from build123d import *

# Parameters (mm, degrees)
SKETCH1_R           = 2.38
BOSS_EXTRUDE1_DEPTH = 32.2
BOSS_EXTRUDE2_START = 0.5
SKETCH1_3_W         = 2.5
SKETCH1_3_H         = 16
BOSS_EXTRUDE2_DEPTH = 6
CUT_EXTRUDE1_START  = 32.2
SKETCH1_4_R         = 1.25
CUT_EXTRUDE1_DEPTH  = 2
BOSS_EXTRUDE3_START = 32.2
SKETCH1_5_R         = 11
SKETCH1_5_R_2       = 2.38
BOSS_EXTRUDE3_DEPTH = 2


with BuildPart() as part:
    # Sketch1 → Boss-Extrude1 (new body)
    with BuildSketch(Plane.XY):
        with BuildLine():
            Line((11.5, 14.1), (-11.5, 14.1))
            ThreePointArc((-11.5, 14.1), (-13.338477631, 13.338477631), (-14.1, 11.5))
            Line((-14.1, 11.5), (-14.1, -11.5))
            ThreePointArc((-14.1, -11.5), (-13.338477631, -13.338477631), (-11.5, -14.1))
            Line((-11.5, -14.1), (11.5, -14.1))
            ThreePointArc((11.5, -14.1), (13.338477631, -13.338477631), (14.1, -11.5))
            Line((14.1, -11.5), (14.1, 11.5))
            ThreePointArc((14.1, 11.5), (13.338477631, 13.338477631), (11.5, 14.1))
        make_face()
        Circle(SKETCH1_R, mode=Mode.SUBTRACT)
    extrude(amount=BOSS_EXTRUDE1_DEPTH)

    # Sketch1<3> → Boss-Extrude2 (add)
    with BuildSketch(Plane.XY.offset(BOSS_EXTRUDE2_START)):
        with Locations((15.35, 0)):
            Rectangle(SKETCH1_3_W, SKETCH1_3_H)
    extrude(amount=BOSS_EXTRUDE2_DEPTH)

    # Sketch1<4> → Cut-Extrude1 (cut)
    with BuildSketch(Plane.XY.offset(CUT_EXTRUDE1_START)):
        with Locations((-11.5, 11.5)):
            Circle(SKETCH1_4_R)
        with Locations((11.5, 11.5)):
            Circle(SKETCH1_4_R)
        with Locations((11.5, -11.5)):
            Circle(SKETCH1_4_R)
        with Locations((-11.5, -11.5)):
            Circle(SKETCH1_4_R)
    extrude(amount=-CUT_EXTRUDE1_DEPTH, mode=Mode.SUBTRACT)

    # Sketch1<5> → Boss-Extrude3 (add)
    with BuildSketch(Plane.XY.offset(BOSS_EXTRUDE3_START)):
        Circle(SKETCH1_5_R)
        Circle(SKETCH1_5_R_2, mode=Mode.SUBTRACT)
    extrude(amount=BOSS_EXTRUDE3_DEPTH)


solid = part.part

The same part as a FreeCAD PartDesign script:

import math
import FreeCAD as App
import Part
import Sketcher

doc = App.newDocument("Part")
body = doc.addObject("PartDesign::Body", "Body")

sketch1 = body.newObject("Sketcher::SketchObject", "Sketch")
sketch1.AttachmentSupport = (doc.getObject("XY_Plane"), [""])
sketch1.MapMode = "FlatFace"
sketch1.addGeometry([
    Part.LineSegment(App.Vector(11.5, 14.1, 0), App.Vector(-11.5, 14.1, 0)),
    Part.ArcOfCircle(Part.Circle(App.Vector(-11.5, 11.5, 0), App.Vector(0, 0, 1), 2.6), math.radians(90), math.radians(180)),
    Part.LineSegment(App.Vector(-14.1, 11.5, 0), App.Vector(-14.1, -11.5, 0)),
    Part.ArcOfCircle(Part.Circle(App.Vector(-11.5, -11.5, 0), App.Vector(0, 0, 1), 2.6), math.radians(180), math.radians(270)),
    Part.LineSegment(App.Vector(-11.5, -14.1, 0), App.Vector(11.5, -14.1, 0)),
    Part.ArcOfCircle(Part.Circle(App.Vector(11.5, -11.5, 0), App.Vector(0, 0, 1), 2.6), math.radians(-90), math.radians(0)),
    Part.LineSegment(App.Vector(14.1, -11.5, 0), App.Vector(14.1, 11.5, 0)),
    Part.ArcOfCircle(Part.Circle(App.Vector(11.5, 11.5, 0), App.Vector(0, 0, 1), 2.6), math.radians(0), math.radians(90)),
    Part.Circle(App.Vector(0, 0, 0), App.Vector(0, 0, 1), 2.4),
], False)
sketch1.addConstraint([
    Sketcher.Constraint("Tangent", 0, 2, 1, 1),
    Sketcher.Constraint("Tangent", 1, 2, 2, 1),
    Sketcher.Constraint("Tangent", 2, 2, 3, 1),
    Sketcher.Constraint("Tangent", 3, 2, 4, 1),
    Sketcher.Constraint("Tangent", 4, 2, 5, 1),
    Sketcher.Constraint("Tangent", 5, 2, 6, 1),
    Sketcher.Constraint("Tangent", 6, 2, 7, 1),
    Sketcher.Constraint("Tangent", 7, 2, 0, 1),
    Sketcher.Constraint("Horizontal", 0),
    Sketcher.Constraint("Vertical", 2),
    Sketcher.Constraint("Horizontal", 4),
    Sketcher.Constraint("Vertical", 6),
    Sketcher.Constraint("Coincident", 8, 3, -1, 1),
    Sketcher.Constraint("Equal", 1, 3),
    Sketcher.Constraint("Equal", 3, 5),
    Sketcher.Constraint("Equal", 5, 7),
    Sketcher.Constraint("Symmetric", 1, 3, 5, 3, -1, 1),
    Sketcher.Constraint("Equal", 4, 2),
    Sketcher.Constraint("Radius", 1, 2.6),
    Sketcher.Constraint("Diameter", 8, 4.76),
    Sketcher.Constraint("DistanceX", 0, 2, 0, 1, 23.0),
])
pad1 = body.newObject("PartDesign::Pad", "Pad")
pad1.Profile = sketch1
pad1.Length = 32.2

sketch2 = body.newObject("Sketcher::SketchObject", "Sketch001")
sketch2.AttachmentSupport = (doc.getObject("XY_Plane"), [""])
sketch2.MapMode = "FlatFace"
sketch2.AttachmentOffset = App.Placement(App.Vector(0, 0, 0.5), App.Rotation())
sketch2.addGeometry([
    Part.LineSegment(App.Vector(14.1, 8, 0), App.Vector(14.1, -8, 0)),
    Part.LineSegment(App.Vector(14.1, -8, 0), App.Vector(16.6, -8, 0)),
    Part.LineSegment(App.Vector(16.6, -8, 0), App.Vector(16.6, 8, 0)),
    Part.LineSegment(App.Vector(16.6, 8, 0), App.Vector(14.1, 8, 0)),
], False)
sketch2.addConstraint([
    Sketcher.Constraint("Coincident", 0, 2, 1, 1),
    Sketcher.Constraint("Coincident", 1, 2, 2, 1),
    Sketcher.Constraint("Coincident", 2, 2, 3, 1),
    Sketcher.Constraint("Coincident", 3, 2, 0, 1),
    Sketcher.Constraint("Vertical", 0),
    Sketcher.Constraint("Horizontal", 1),
    Sketcher.Constraint("Vertical", 2),
    Sketcher.Constraint("Horizontal", 3),
    Sketcher.Constraint("DistanceY", 0, 2, 0, 1, 16.0),
    Sketcher.Constraint("DistanceX", 1, 1, 1, 2, 2.5),
    Sketcher.Constraint("DistanceY", 0, 2, -1, 1, 8.0),
    Sketcher.Constraint("DistanceX", -1, 1, 0, 2, 14.1),
])
pad2 = body.newObject("PartDesign::Pad", "Pad001")
pad2.Profile = sketch2
pad2.Length = 6

sketch3 = body.newObject("Sketcher::SketchObject", "Sketch002")
sketch3.AttachmentSupport = (doc.getObject("XY_Plane"), [""])
sketch3.MapMode = "FlatFace"
sketch3.AttachmentOffset = App.Placement(App.Vector(0, 0, 32.2), App.Rotation())
sketch3.addGeometry([
    Part.Circle(App.Vector(-11.5, 11.5, 0), App.Vector(0, 0, 1), 1.2),
    Part.Circle(App.Vector(11.5, 11.5, 0), App.Vector(0, 0, 1), 1.2),
    Part.Circle(App.Vector(11.5, -11.5, 0), App.Vector(0, 0, 1), 1.2),
    Part.Circle(App.Vector(-11.5, -11.5, 0), App.Vector(0, 0, 1), 1.2),
], False)
sketch3.addConstraint([
    Sketcher.Constraint("Equal", 0, 1),
    Sketcher.Constraint("Equal", 1, 2),
    Sketcher.Constraint("Equal", 2, 3),
    Sketcher.Constraint("Symmetric", 0, 3, 2, 3, -1, 1),
    Sketcher.Constraint("Symmetric", 1, 3, 3, 3, -1, 1),
    Sketcher.Constraint("Symmetric", 0, 3, 1, 3, -2),
    Sketcher.Constraint("Diameter", 0, 2.5),
    Sketcher.Constraint("DistanceX", 0, 3, 1, 3, 23.0),
    Sketcher.Constraint("DistanceY", 2, 3, 1, 3, 23.0),
])
pocket1 = body.newObject("PartDesign::Pocket", "Pocket")
pocket1.Profile = sketch3
pocket1.Length = 2

sketch4 = body.newObject("Sketcher::SketchObject", "Sketch003")
sketch4.AttachmentSupport = (doc.getObject("XY_Plane"), [""])
sketch4.MapMode = "FlatFace"
sketch4.AttachmentOffset = App.Placement(App.Vector(0, 0, 32.2), App.Rotation())
sketch4.addGeometry([
    Part.Circle(App.Vector(0, 0, 0), App.Vector(0, 0, 1), 11),
    Part.Circle(App.Vector(0, 0, 0), App.Vector(0, 0, 1), 2.4),
], False)
sketch4.addConstraint([
    Sketcher.Constraint("Coincident", 0, 3, -1, 1),
    Sketcher.Constraint("Coincident", 1, 3, -1, 1),
    Sketcher.Constraint("Diameter", 0, 22.0),
    Sketcher.Constraint("Diameter", 1, 4.76),
])
pad3 = body.newObject("PartDesign::Pad", "Pad002")
pad3.Profile = sketch4
pad3.Length = 2

doc.recompute()
